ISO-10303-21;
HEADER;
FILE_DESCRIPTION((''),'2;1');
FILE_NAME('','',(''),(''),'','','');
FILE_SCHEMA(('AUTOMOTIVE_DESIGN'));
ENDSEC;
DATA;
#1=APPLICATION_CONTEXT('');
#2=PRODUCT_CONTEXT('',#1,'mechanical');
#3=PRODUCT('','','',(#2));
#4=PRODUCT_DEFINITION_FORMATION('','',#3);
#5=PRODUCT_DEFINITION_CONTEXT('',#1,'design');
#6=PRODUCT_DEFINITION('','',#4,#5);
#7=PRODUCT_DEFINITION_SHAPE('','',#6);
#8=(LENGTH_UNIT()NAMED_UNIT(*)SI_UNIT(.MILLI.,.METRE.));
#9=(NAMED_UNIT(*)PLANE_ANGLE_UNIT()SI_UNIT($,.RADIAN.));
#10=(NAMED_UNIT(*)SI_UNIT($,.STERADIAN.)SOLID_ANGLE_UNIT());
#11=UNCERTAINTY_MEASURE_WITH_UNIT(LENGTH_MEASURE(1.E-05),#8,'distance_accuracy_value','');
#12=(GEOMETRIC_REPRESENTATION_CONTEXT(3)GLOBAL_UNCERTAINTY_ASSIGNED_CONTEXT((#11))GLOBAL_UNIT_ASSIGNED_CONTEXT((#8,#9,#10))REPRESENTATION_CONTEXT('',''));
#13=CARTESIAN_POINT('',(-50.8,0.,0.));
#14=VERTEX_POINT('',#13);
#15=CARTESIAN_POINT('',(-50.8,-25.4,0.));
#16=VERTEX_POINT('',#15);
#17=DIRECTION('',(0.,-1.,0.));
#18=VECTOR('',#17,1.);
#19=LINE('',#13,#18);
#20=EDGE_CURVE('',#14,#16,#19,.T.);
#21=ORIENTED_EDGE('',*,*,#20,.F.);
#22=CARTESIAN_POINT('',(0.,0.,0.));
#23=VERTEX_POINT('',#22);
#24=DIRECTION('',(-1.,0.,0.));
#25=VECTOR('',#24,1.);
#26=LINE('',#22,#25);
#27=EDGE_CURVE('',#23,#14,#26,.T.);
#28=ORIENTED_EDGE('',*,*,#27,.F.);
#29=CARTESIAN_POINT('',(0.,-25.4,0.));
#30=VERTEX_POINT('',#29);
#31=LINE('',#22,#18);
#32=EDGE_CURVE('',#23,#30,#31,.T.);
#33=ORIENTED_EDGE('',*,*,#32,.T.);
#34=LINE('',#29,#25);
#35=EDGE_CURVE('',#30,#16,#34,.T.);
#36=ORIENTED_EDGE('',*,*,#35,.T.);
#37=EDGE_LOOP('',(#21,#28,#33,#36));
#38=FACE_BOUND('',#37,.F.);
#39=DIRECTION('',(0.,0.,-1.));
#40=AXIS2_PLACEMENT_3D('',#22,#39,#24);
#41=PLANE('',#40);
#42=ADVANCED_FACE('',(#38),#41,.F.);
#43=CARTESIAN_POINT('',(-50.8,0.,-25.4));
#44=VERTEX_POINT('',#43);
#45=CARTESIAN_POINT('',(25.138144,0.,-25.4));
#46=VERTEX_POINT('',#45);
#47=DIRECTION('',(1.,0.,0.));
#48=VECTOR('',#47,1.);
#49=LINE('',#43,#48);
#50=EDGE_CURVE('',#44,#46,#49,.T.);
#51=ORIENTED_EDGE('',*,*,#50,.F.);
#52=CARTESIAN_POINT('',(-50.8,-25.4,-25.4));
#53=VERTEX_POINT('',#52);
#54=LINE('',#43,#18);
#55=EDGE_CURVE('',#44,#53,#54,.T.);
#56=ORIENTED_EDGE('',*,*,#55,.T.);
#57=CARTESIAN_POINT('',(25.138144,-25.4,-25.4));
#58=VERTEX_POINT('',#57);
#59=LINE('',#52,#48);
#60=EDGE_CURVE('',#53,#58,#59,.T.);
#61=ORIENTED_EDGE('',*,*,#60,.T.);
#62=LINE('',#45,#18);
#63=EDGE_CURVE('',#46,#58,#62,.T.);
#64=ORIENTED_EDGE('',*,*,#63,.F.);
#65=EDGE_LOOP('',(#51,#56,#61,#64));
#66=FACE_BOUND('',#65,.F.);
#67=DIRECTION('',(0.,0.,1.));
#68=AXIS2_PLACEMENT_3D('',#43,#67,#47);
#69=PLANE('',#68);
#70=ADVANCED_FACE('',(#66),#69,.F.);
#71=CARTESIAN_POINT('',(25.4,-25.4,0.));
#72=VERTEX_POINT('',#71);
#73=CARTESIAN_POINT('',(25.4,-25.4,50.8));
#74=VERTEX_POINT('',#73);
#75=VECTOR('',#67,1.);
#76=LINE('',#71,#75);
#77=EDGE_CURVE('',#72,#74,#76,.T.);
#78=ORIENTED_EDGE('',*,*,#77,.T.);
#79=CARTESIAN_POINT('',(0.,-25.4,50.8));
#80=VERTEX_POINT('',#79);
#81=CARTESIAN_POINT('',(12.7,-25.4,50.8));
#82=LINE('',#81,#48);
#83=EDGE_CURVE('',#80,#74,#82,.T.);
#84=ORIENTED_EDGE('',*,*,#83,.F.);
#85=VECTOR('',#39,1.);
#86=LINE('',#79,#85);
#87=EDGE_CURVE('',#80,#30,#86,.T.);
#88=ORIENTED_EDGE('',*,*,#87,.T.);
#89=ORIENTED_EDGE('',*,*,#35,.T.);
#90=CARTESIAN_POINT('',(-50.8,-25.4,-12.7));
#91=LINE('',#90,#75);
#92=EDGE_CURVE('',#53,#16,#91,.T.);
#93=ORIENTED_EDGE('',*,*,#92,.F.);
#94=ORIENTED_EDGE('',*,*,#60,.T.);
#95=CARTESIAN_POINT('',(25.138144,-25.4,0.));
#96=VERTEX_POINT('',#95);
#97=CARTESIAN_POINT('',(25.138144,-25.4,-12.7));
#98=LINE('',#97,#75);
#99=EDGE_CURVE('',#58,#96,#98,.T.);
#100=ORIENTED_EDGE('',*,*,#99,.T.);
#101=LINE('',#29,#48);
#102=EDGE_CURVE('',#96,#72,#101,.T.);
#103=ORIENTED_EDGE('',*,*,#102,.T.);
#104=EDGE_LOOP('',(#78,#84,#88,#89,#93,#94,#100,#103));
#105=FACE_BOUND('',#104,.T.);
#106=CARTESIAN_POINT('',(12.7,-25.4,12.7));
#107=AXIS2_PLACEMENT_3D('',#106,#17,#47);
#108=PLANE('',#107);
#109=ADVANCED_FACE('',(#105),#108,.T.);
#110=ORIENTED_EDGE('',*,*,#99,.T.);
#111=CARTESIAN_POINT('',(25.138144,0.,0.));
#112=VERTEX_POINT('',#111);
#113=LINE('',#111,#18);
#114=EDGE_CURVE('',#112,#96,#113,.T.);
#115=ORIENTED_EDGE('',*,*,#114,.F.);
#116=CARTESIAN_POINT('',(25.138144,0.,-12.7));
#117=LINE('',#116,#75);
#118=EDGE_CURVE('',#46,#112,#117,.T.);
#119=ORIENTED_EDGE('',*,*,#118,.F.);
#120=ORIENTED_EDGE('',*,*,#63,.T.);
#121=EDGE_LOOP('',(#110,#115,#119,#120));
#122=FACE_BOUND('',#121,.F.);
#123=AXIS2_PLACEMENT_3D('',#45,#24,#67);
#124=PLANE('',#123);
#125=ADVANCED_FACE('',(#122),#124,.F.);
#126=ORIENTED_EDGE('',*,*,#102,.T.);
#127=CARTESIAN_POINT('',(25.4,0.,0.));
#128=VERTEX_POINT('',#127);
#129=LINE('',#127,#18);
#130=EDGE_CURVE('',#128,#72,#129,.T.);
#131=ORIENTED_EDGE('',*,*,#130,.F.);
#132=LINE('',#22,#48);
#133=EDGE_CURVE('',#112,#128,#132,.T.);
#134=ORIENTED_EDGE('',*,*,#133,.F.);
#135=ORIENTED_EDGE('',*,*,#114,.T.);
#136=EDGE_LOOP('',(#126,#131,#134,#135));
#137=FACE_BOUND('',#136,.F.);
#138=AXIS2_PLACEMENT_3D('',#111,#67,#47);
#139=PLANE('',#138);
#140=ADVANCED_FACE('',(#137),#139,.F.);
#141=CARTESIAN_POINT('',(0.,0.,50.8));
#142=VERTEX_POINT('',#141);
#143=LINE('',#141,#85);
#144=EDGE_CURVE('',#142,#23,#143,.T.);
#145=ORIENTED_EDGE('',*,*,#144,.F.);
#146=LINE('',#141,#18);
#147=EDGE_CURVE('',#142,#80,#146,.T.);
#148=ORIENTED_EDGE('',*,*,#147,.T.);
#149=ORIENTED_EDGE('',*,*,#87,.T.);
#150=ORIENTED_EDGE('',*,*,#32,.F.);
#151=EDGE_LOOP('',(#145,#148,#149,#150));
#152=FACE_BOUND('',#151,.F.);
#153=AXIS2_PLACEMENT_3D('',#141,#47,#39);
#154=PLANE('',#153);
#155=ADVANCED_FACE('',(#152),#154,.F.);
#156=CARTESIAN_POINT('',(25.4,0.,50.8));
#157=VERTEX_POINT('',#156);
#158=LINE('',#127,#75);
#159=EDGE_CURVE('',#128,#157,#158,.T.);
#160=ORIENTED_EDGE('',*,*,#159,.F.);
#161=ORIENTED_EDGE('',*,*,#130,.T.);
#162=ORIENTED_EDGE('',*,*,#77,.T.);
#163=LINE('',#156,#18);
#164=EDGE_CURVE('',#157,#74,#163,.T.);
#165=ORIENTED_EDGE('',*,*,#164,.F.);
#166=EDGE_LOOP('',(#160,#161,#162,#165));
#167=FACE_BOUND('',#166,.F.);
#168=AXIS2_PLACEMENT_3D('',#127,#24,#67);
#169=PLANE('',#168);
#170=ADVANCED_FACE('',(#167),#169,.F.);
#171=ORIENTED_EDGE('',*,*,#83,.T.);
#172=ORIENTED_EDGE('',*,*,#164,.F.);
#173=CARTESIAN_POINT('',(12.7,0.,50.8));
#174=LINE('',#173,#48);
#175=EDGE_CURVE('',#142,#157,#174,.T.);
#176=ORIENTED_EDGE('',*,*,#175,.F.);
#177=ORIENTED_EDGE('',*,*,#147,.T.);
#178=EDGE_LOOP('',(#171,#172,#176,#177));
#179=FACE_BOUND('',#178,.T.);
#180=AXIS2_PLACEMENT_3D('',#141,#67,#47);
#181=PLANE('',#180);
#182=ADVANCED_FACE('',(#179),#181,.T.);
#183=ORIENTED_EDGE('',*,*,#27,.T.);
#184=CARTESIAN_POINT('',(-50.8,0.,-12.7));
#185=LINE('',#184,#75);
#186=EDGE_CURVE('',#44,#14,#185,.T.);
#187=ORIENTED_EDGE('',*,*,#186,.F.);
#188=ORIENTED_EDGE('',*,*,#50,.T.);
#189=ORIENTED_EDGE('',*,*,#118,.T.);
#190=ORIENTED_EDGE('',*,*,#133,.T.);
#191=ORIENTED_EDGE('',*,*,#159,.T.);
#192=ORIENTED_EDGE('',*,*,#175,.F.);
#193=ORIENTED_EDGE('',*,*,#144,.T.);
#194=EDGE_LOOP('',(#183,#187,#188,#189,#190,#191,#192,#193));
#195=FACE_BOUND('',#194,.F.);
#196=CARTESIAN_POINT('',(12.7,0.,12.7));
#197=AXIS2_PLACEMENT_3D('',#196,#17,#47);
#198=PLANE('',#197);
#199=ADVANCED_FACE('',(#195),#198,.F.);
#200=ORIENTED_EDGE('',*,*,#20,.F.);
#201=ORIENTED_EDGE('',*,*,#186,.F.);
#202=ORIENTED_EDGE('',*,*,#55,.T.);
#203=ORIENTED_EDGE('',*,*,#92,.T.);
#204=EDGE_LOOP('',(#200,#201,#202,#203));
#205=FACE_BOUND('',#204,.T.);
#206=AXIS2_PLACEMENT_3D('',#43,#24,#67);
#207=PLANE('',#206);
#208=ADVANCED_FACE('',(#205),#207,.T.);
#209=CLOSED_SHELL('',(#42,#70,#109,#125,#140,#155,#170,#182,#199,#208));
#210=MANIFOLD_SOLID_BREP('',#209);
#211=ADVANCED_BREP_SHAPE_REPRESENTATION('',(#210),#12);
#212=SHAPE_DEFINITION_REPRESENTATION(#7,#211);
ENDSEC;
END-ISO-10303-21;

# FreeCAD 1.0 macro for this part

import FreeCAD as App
import Part
import Sketcher

V = App.Vector
Q = App.Units.Quantity


def add_polygon(sketch, points):
    """Adds a closed chain of lines whose ends are joined by coincident constraints."""
    first, n = sketch.GeometryCount, len(points)
    for a, b in zip(points, points[1:] + points[:1]):
        sketch.addGeometry(Part.LineSegment(App.Vector(*a, 0), App.Vector(*b, 0)), False)
    for i in range(n):
        sketch.addConstraint(Sketcher.Constraint("Coincident", first + i, 2, first + (i + 1) % n, 1))

doc = App.newDocument("Part")
body = doc.addObject("PartDesign::Body", "Body")

# Sketch on XZ plane
sketch1 = doc.addObject("Sketcher::SketchObject", "Sketch")
body.addObject(sketch1)
sketch1.AttachmentSupport = (doc.XZ_Plane, [""])
sketch1.MapMode = "FlatFace"
add_polygon(sketch1, [(0, 0), (-50.8, 0), (-50.8, -25.4), (25.14, -25.4), (25.14, 0), (25.4, 0), (25.4, 50.8), (0, 50.8)])  # lines 0-7
sketch1.addConstraint([
    Sketcher.Constraint("Horizontal", 0),
    Sketcher.Constraint("Vertical", 1),
    Sketcher.Constraint("Horizontal", 2),
    Sketcher.Constraint("Vertical", 3),
    Sketcher.Constraint("Horizontal", 4),
    Sketcher.Constraint("Vertical", 5),
    Sketcher.Constraint("Horizontal", 6),
    Sketcher.Constraint("Vertical", 7),
    Sketcher.Constraint("Coincident", 7, 2, -1, 1),
    Sketcher.Constraint("PointOnObject", 3, 2, -1),
    Sketcher.Constraint("Equal", 6, 1),
    Sketcher.Constraint("Equal", 0, 5),
    Sketcher.Constraint("DistanceX", 0, 2, 0, 1, Q("2 in")),
    Sketcher.Constraint("DistanceX", 6, 2, 6, 1, Q("1 in")),
    Sketcher.Constraint("DistanceX", 2, 1, 2, 2, 75.938144),
])
pad1 = doc.addObject("PartDesign::Pad", "Pad")
body.addObject(pad1)
pad1.Profile = sketch1
pad1.Length = Q("1 in")

doc.recompute()
